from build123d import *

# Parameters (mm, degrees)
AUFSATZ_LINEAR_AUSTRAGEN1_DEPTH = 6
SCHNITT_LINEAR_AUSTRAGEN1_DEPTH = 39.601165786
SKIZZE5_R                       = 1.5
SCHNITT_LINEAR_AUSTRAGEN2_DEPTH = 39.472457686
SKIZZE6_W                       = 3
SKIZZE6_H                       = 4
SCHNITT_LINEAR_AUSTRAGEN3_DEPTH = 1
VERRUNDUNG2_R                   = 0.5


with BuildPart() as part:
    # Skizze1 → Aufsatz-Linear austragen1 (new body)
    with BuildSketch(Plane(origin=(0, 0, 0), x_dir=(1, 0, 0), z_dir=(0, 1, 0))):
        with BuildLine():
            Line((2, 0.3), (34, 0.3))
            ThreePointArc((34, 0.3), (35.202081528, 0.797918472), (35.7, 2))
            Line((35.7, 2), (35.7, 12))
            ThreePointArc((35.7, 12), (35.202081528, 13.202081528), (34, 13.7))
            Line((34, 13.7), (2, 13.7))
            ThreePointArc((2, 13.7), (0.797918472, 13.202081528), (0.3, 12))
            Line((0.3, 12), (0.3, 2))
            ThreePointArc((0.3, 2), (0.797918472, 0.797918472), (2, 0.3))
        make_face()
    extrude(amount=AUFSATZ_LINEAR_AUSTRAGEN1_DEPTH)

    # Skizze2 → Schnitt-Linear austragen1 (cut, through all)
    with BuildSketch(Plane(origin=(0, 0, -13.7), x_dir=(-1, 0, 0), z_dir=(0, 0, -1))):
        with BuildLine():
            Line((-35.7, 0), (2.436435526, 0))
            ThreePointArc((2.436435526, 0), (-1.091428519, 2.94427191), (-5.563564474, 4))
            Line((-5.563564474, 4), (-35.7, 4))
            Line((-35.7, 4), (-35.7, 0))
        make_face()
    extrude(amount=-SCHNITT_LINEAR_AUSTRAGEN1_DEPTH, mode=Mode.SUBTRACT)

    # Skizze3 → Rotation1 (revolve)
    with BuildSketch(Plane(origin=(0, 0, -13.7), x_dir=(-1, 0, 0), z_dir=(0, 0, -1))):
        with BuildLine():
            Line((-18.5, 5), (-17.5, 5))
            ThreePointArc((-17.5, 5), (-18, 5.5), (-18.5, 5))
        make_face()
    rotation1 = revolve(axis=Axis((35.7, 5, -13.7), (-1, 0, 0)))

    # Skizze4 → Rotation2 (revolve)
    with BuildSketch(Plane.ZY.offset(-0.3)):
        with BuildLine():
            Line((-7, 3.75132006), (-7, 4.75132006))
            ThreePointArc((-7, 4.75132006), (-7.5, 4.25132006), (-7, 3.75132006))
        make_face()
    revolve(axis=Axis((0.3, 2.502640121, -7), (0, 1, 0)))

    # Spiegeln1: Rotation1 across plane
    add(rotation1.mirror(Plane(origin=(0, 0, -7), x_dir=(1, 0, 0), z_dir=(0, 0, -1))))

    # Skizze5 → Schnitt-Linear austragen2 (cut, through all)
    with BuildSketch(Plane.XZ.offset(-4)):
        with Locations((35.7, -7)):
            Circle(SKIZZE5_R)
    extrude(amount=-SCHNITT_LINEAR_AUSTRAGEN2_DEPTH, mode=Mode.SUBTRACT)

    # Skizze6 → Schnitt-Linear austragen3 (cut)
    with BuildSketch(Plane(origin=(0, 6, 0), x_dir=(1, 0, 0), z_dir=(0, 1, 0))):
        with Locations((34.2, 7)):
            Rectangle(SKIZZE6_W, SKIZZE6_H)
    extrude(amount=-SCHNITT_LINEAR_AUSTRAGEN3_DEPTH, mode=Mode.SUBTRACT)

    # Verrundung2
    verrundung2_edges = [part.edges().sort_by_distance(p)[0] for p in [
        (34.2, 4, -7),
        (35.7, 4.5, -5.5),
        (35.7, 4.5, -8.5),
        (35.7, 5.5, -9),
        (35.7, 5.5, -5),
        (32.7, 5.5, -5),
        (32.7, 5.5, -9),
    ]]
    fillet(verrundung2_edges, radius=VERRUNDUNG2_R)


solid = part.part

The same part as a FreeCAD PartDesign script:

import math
import FreeCAD as App
import Part
import Sketcher
from FreeCAD import Vector
Q = App.Units.Quantity


def edges_at(feature, points):
    """Names of the edges that pass closest to the given points."""
    edges = feature.Shape.Edges
    near = lambda p: min(range(len(edges)), key=lambda i: edges[i].distToShape(Part.Vertex(*p))[0])
    return sorted({f"Edge{near(p) + 1}" for p in points})

doc = App.newDocument("Part")
body = doc.addObject("PartDesign::Body", "Body")

# Sketch on XZ plane
sketch1 = body.newObject("Sketcher::SketchObject", "Sketch")
sketch1.AttachmentSupport = (doc.getObject("XZ_Plane"), [""])
sketch1.MapMode = "FlatFace"
sketch1.addGeometry([
    Part.LineSegment(Vector(2, -0.3, 0), Vector(34, -0.3, 0)),  # 0
    Part.ArcOfCircle(Part.Circle(Vector(34, -2, 0), Vector(0, 0, 1), 1.7), math.radians(0), math.radians(90)),  # 1
    Part.LineSegment(Vector(35.7, -2, 0), Vector(35.7, -12, 0)),  # 2
    Part.ArcOfCircle(Part.Circle(Vector(34, -12, 0), Vector(0, 0, 1), 1.7), math.radians(-90), math.radians(0)),  # 3
    Part.LineSegment(Vector(34, -13.7, 0), Vector(2, -13.7, 0)),  # 4
    Part.ArcOfCircle(Part.Circle(Vector(2, -12, 0), Vector(0, 0, 1), 1.7), math.radians(180), math.radians(270)),  # 5
    Part.LineSegment(Vector(0.3, -12, 0), Vector(0.3, -2, 0)),  # 6
    Part.ArcOfCircle(Part.Circle(Vector(2, -2, 0), Vector(0, 0, 1), 1.7), math.radians(90), math.radians(180)),  # 7
], False)
sketch1.addConstraint([
    Sketcher.Constraint("Tangent", 0, 2, 1, 2),
    Sketcher.Constraint("Tangent", 1, 1, 2, 1),
    Sketcher.Constraint("Tangent", 2, 2, 3, 2),
    Sketcher.Constraint("Tangent", 3, 1, 4, 1),
    Sketcher.Constraint("Tangent", 4, 2, 5, 2),
    Sketcher.Constraint("Tangent", 5, 1, 6, 1),
    Sketcher.Constraint("Tangent", 6, 2, 7, 2),
    Sketcher.Constraint("Tangent", 7, 1, 0, 1),
    Sketcher.Constraint("Horizontal", 0),
    Sketcher.Constraint("Vertical", 2),
    Sketcher.Constraint("Horizontal", 4),
    Sketcher.Constraint("Vertical", 6),
    Sketcher.Constraint("Equal", 1, 3),
    Sketcher.Constraint("Equal", 3, 5),
    Sketcher.Constraint("Equal", 5, 7),
    Sketcher.Constraint("Radius", 1, Q("1.7 mm")),
    Sketcher.Constraint("DistanceX", 0, 1, 0, 2, Q("32 mm")),
    Sketcher.Constraint("DistanceY", 2, 2, 2, 1, Q("10 mm")),
    Sketcher.Constraint("DistanceX", -1, 1, 1, 3, Q("34 mm")),
    Sketcher.Constraint("DistanceY", 1, 3, -1, 1, Q("2 mm")),
])
pad1 = body.newObject("PartDesign::Pad", "Pad")
pad1.Profile = sketch1
pad1.Length = 6
pad1.Reversed = True

# Sketch on XY plane
sketch2 = body.newObject("Sketcher::SketchObject", "Sketch001")
sketch2.AttachmentSupport = (doc.getObject("XY_Plane"), [""])
sketch2.MapMode = "FlatFace"
sketch2.AttachmentOffset = App.Placement(Vector(0, 0, -13.7), App.Rotation())
sketch2.addGeometry([
    Part.LineSegment(Vector(35.7, 0, 0), Vector(-2.4, 0, 0)),
    Part.ArcOfCircle(Part.Circle(Vector(5.6, -6, 0), Vector(0, 0, 1), 10), math.radians(90), math.radians(143)),
    Part.LineSegment(Vector(5.6, 4, 0), Vector(35.7, 4, 0)),
    Part.LineSegment(Vector(35.7, 4, 0), Vector(35.7, 0, 0)),
], False)
sketch2.addConstraint([
    Sketcher.Constraint("Coincident", 0, 2, 1, 2),
    Sketcher.Constraint("Tangent", 1, 1, 2, 1),
    Sketcher.Constraint("Coincident", 2, 2, 3, 1),
    Sketcher.Constraint("Coincident", 3, 2, 0, 1),
    Sketcher.Constraint("Horizontal", 0),
    Sketcher.Constraint("Horizontal", 2),
    Sketcher.Constraint("Vertical", 3),
    Sketcher.Constraint("PointOnObject", 0, 2, -1),
    Sketcher.Constraint("Radius", 1, Q("10 mm")),
    Sketcher.Constraint("DistanceY", 3, 2, 3, 1, Q("4 mm")),
    Sketcher.Constraint("DistanceX", -1, 1, 2, 2, Q("35.7 mm")),
    Sketcher.Constraint("DistanceX", 0, 2, 0, 1, Q("38.136436 mm")),
])
pocket1 = body.newObject("PartDesign::Pocket", "Pocket")
pocket1.Profile = sketch2
pocket1.Type = "ThroughAll"
pocket1.Reversed = True

# Sketch on XY plane
sketch3 = body.newObject("Sketcher::SketchObject", "Sketch002")
sketch3.AttachmentSupport = (doc.getObject("XY_Plane"), [""])
sketch3.MapMode = "FlatFace"
sketch3.AttachmentOffset = App.Placement(Vector(0, 0, -13.7), App.Rotation())
sketch3.addGeometry([
    Part.LineSegment(Vector(18.5, 5, 0), Vector(17.5, 5, 0)),
    Part.ArcOfCircle(Part.Circle(Vector(18, 5, 0), Vector(0, 0, 1), 0.5), math.radians(0), math.radians(180)),
], False)
sketch3.addGeometry(Part.LineSegment(Vector(18.5, 5, 0), Vector(17.5, 5, 0)), True)  # axis
sketch3.addConstraint([
    Sketcher.Constraint("Coincident", 0, 1, 1, 1),
    Sketcher.Constraint("Coincident", 1, 2, 0, 2),
    Sketcher.Constraint("Horizontal", 0),
    Sketcher.Constraint("Horizontal", 2),
    Sketcher.Constraint("Coincident", 2, 1, 0, 1),
    Sketcher.Constraint("Horizontal", 1, 3, 0, 1),
    Sketcher.Constraint("Equal", 0, 2),
    Sketcher.Constraint("Radius", 1, Q("0.5 mm")),
    Sketcher.Constraint("DistanceX", -1, 1, 1, 3, Q("18 mm")),
    Sketcher.Constraint("DistanceY", -1, 1, 1, 3, Q("5 mm")),
])
revolution = body.newObject("PartDesign::Revolution", "Revolution")
revolution.Profile = sketch3
revolution.ReferenceAxis = (sketch3, ["Axis0"])
revolution.Angle = 360

# Sketch on YZ plane
sketch4 = body.newObject("Sketcher::SketchObject", "Sketch003")
sketch4.AttachmentSupport = (doc.getObject("YZ_Plane"), [""])
sketch4.MapMode = "FlatFace"
sketch4.AttachmentOffset = App.Placement(Vector(0, 0, 0.3), App.Rotation())
sketch4.addGeometry([
    Part.LineSegment(Vector(3.8, -7, 0), Vector(4.8, -7, 0)),
    Part.ArcOfCircle(Part.Circle(Vector(4.3, -7, 0), Vector(0, 0, 1), 0.5), math.radians(180), math.radians(360)),
], False)
sketch4.addGeometry(Part.LineSegment(Vector(3.8, -7, 0), Vector(4.8, -7, 0)), True)  # axis
sketch4.addConstraint([
    Sketcher.Constraint("Coincident", 0, 1, 1, 1),
    Sketcher.Constraint("Coincident", 1, 2, 0, 2),
    Sketcher.Constraint("Horizontal", 0),
    Sketcher.Constraint("Horizontal", 2),
    Sketcher.Constraint("Coincident", 2, 1, 0, 1),
    Sketcher.Constraint("Horizontal", 1, 3, 0, 1),
    Sketcher.Constraint("Equal", 0, 2),
    Sketcher.Constraint("Radius", 1, Q("0.5 mm")),
    Sketcher.Constraint("DistanceY", 1, 3, -1, 1, Q("7 mm")),
    Sketcher.Constraint("DistanceX", -1, 1, 1, 3, Q("4.25132 mm")),
])
revolution2 = body.newObject("PartDesign::Revolution", "Revolution001")
revolution2.Profile = sketch4
revolution2.ReferenceAxis = (sketch4, ["Axis0"])
revolution2.Angle = 360
doc.recompute()

datumplane = body.newObject("PartDesign::Plane", "DatumPlane")
datumplane.AttachmentSupport = (doc.getObject("XY_Plane"), [""])
datumplane.MapMode = "FlatFace"
datumplane.AttachmentOffset = App.Placement(Vector(0, 0, -7), App.Rotation())
mirrored = body.newObject("PartDesign::Mirrored", "Mirrored")
mirrored.Originals = [revolution]
mirrored.MirrorPlane = (datumplane, [""])
body.Tip = mirrored

# Sketch on XZ plane
sketch5 = body.newObject("Sketcher::SketchObject", "Sketch004")
sketch5.AttachmentSupport = (doc.getObject("XZ_Plane"), [""])
sketch5.MapMode = "FlatFace"
sketch5.AttachmentOffset = App.Placement(Vector(0, 0, -4), App.Rotation())
sketch5.addGeometry(Part.Circle(Vector(35.7, -7, 0), Vector(0, 0, 1), 1.5), False)
sketch5.addConstraint([
    Sketcher.Constraint("Diameter", 0, Q("3 mm")),
    Sketcher.Constraint("DistanceY", 0, 3, -1, 1, Q("7 mm")),
    Sketcher.Constraint("DistanceX", -1, 1, 0, 3, Q("35.7 mm")),
])
pocket2 = body.newObject("PartDesign::Pocket", "Pocket001")
pocket2.Profile = sketch5
pocket2.Type = "ThroughAll"

# Sketch on XZ plane
sketch6 = body.newObject("Sketcher::SketchObject", "Sketch005")
sketch6.AttachmentSupport = (doc.getObject("XZ_Plane"), [""])
sketch6.MapMode = "FlatFace"
sketch6.AttachmentOffset = App.Placement(Vector(0, 0, -6), App.Rotation())
sketch6.addGeometry([
    Part.LineSegment(Vector(32.7, -9, 0), Vector(32.7, -5, 0)),
    Part.LineSegment(Vector(32.7, -5, 0), Vector(35.7, -5, 0)),
    Part.LineSegment(Vector(35.7, -5, 0), Vector(35.7, -9, 0)),
    Part.LineSegment(Vector(35.7, -9, 0), Vector(32.7, -9, 0)),
], False)
sketch6.addConstraint([
    Sketcher.Constraint("Coincident", 0, 2, 1, 1),
    Sketcher.Constraint("Coincident", 1, 2, 2, 1),
    Sketcher.Constraint("Coincident", 2, 2, 3, 1),
    Sketcher.Constraint("Coincident", 3, 2, 0, 1),
    Sketcher.Constraint("Vertical", 0),
    Sketcher.Constraint("Horizontal", 1),
    Sketcher.Constraint("Vertical", 2),
    Sketcher.Constraint("Horizontal", 3),
    Sketcher.Constraint("DistanceX", 1, 1, 1, 2, Q("3 mm")),
    Sketcher.Constraint("DistanceY", 0, 1, 0, 2, Q("4 mm")),
    Sketcher.Constraint("DistanceY", 0, 2, -1, 1, Q("5 mm")),
    Sketcher.Constraint("DistanceX", -1, 1, 0, 2, Q("32.7 mm")),
])
pocket3 = body.newObject("PartDesign::Pocket", "Pocket002")
pocket3.Profile = sketch6
pocket3.Length = 1
pocket3.Reversed = True
doc.recompute()

fillet = body.newObject("PartDesign::Fillet", "Fillet")
fillet.Base = (pocket3, edges_at(pocket3, [
    (34.2, 4, -7),
    (35.7, 4.5, -5.5),
    (35.7, 4.5, -8.5),
    (35.7, 5.5, -9),
    (35.7, 5.5, -5),
    (32.7, 5.5, -5),
    (32.7, 5.5, -9),
]))
fillet.Radius = 0.5

doc.recompute()
